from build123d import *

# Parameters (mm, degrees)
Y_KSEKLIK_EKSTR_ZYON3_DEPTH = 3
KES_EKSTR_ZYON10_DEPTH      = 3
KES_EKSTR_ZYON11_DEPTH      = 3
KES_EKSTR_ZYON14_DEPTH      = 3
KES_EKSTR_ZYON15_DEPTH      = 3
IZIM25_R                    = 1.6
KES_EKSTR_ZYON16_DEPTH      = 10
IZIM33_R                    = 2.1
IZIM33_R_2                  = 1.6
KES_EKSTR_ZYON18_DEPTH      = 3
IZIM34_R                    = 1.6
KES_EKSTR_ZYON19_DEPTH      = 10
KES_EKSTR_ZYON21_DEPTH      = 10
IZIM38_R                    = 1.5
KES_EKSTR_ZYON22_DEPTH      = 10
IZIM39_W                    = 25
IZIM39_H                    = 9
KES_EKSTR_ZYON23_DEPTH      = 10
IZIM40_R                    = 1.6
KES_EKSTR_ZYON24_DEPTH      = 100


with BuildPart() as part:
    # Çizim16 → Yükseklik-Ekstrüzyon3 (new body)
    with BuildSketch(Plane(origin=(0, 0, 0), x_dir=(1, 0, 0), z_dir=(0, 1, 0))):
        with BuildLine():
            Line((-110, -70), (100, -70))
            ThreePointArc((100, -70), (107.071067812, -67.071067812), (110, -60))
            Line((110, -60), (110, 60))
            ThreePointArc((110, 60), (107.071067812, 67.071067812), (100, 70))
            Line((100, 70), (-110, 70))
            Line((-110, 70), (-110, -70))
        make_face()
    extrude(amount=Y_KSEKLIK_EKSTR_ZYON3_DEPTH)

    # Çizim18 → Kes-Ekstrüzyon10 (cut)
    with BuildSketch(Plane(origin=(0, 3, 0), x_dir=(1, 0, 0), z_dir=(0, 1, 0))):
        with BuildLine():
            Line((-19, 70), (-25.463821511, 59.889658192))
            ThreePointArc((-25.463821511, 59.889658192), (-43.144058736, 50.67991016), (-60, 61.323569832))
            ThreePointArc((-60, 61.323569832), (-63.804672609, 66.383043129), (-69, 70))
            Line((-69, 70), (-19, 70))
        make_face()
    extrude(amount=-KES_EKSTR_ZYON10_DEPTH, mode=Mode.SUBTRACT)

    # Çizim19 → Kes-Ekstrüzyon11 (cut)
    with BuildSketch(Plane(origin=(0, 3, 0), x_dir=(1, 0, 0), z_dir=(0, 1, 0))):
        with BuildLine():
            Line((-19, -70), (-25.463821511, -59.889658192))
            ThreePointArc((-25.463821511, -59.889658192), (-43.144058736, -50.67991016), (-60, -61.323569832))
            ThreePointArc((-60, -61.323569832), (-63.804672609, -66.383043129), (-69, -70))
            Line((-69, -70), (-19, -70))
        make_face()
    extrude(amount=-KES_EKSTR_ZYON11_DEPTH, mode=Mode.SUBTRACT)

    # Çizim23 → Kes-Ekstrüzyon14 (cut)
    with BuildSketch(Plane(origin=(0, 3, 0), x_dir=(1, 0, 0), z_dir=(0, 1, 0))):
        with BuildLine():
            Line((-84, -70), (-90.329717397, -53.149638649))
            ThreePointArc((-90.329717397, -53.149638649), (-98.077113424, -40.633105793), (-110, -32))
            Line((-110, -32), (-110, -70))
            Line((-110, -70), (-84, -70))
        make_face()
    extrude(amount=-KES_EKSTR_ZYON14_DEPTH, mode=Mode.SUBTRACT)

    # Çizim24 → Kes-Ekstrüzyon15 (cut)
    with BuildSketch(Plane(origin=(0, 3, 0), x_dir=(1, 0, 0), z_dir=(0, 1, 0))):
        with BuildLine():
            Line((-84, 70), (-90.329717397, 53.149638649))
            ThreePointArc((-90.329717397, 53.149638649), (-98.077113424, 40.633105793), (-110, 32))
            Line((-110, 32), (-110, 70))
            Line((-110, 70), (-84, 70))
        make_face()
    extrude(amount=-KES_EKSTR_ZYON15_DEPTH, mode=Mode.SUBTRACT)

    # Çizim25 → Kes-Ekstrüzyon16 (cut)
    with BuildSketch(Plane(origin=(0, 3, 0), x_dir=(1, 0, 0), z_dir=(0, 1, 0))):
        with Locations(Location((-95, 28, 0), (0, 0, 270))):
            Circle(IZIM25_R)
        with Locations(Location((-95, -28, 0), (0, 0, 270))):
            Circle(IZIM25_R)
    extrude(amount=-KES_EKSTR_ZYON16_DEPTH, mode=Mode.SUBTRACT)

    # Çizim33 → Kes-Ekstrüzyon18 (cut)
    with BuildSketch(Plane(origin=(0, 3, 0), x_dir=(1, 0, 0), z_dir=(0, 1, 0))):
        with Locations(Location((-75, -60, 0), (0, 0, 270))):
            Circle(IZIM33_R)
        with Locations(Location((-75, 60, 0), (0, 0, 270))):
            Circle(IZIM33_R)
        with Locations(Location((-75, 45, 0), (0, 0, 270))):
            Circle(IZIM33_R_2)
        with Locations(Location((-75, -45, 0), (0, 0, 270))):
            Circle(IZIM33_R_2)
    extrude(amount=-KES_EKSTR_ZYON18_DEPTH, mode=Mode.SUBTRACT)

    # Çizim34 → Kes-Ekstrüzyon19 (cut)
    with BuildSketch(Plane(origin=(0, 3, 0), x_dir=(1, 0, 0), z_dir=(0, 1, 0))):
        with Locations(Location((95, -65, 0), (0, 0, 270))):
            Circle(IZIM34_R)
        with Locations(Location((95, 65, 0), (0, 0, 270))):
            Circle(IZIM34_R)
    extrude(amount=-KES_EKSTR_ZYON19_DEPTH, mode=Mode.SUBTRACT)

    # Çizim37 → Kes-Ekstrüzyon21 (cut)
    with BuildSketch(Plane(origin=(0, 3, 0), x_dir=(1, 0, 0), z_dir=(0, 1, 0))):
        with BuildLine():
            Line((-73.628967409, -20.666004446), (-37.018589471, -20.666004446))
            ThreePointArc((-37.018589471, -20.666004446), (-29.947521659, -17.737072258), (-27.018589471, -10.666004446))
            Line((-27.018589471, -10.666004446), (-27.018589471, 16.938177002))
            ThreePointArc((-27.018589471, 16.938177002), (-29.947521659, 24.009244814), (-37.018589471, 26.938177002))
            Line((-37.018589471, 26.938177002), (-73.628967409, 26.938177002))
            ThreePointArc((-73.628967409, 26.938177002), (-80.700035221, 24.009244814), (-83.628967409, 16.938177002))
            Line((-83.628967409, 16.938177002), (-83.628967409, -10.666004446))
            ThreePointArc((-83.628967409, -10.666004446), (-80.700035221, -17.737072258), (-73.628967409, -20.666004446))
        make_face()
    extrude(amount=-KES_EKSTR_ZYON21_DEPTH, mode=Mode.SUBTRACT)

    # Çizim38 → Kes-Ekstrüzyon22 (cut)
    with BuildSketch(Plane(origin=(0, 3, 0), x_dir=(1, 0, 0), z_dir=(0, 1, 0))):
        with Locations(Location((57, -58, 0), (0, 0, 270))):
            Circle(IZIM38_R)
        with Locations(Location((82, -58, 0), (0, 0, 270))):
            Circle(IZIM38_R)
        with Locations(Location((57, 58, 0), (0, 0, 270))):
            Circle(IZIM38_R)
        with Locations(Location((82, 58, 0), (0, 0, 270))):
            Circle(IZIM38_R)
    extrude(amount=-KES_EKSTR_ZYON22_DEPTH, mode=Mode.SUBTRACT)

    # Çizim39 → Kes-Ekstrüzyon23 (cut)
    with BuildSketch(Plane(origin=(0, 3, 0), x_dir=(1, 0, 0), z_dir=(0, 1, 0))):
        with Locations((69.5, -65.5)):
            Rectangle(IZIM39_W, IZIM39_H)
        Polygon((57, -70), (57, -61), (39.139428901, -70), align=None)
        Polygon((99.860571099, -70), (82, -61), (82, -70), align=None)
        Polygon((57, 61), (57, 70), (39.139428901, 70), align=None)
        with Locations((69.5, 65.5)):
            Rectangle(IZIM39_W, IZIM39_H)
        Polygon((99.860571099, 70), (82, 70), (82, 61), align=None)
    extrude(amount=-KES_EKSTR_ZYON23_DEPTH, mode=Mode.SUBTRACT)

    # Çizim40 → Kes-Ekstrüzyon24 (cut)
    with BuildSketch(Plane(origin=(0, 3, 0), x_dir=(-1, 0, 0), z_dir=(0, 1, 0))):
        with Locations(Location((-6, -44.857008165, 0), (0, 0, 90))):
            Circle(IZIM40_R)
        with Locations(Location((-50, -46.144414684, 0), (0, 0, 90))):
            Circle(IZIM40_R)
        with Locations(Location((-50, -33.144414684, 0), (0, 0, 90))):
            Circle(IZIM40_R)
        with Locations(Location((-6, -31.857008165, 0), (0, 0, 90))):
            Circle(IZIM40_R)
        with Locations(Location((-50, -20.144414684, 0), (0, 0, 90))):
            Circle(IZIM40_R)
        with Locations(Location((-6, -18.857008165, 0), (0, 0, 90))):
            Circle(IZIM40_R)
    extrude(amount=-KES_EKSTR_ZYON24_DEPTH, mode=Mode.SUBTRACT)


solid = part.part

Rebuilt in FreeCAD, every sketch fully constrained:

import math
import FreeCAD as App
import Part
import Sketcher

doc = App.newDocument("Part")
params = doc.addObject("Spreadsheet::Sheet", "Params")
for row, (alias, value) in enumerate([
    ("sketch1_radius", "10 mm"),
    ("sketch1_width", "210 mm"),
    ("sketch1_height", "120 mm"),
    ("pad1_length", "3 mm"),
    ("sketch2_radius", "20 mm"),
    ("sketch2_width", "50 mm"),
    ("sketch2_length", "12 mm"),
    ("pocket1_length", "3 mm"),
    ("sketch3_radius", "20 mm"),
    ("sketch3_width", "50 mm"),
    ("sketch3_length", "12 mm"),
    ("pocket2_length", "3 mm"),
    ("sketch4_radius", "38 mm"),
    ("sketch4_width", "26 mm"),
    ("sketch4_height", "38 mm"),
    ("sketch4_length", "18 mm"),
    ("pocket3_length", "3 mm"),
    ("sketch5_radius", "38 mm"),
    ("sketch5_width", "26 mm"),
    ("sketch5_height", "38 mm"),
    ("sketch5_length", "18 mm"),
    ("pocket4_length", "3 mm"),
    ("sketch6_diameter", "3.2 mm"),
    ("pocket5_length", "10 mm"),
    ("sketch7_diameter", "4.2 mm"),
    ("sketch7_diameter2", "3.2 mm"),
    ("pocket6_length", "3 mm"),
    ("sketch8_diameter", "3.2 mm"),
    ("pocket7_length", "10 mm"),
    ("sketch9_radius", "10 mm"),
    ("pocket8_length", "10 mm"),
    ("sketch10_diameter", "3 mm"),
    ("pocket9_length", "10 mm"),
    ("sketch11_width", "25 mm"),
    ("sketch11_length", "20 mm"),
    ("pocket10_length", "10 mm"),
    ("sketch12_diameter", "3.2 mm"),
    ("pocket11_length", "100 mm"),
], start=1):
    params.set(f"A{row}", alias)
    params.set(f"B{row}", "=" + value)
    params.setAlias(f"B{row}", alias)

body = doc.addObject("PartDesign::Body", "Body")

sketch1 = body.newObject("Sketcher::SketchObject", "Sketch")
sketch1.AttachmentSupport = (doc.getObject("XZ_Plane"), [""])
sketch1.MapMode = "FlatFace"
sketch1.addGeometry([
    Part.LineSegment(App.Vector(-110, 70, 0), App.Vector(100, 70, 0)),
    Part.ArcOfCircle(Part.Circle(App.Vector(100, 60, 0), App.Vector(0, 0, 1), 10), math.radians(0), math.radians(90)),
    Part.LineSegment(App.Vector(110, 60, 0), App.Vector(110, -60, 0)),
    Part.ArcOfCircle(Part.Circle(App.Vector(100, -60, 0), App.Vector(0, 0, 1), 10), math.radians(-90), math.radians(0)),
    Part.LineSegment(App.Vector(100, -70, 0), App.Vector(-110, -70, 0)),
    Part.LineSegment(App.Vector(-110, -70, 0), App.Vector(-110, 70, 0)),
], False)
sketch1.addConstraint([
    Sketcher.Constraint("Tangent", 0, 2, 1, 2),
    Sketcher.Constraint("Tangent", 1, 1, 2, 1),
    Sketcher.Constraint("Tangent", 2, 2, 3, 2),
    Sketcher.Constraint("Tangent", 3, 1, 4, 1),
    Sketcher.Constraint("Coincident", 4, 2, 5, 1),
    Sketcher.Constraint("Coincident", 5, 2, 0, 1),
    Sketcher.Constraint("Horizontal", 0),
    Sketcher.Constraint("Vertical", 2),
    Sketcher.Constraint("Horizontal", 4),
    Sketcher.Constraint("Vertical", 5),
    Sketcher.Constraint("Equal", 1, 3),
    Sketcher.Constraint("Radius", 1, 10.0),
    Sketcher.Constraint("DistanceX", 0, 1, 0, 2, 210.0),
    Sketcher.Constraint("DistanceY", 2, 2, 2, 1, 120.0),
    Sketcher.Constraint("DistanceX", -1, 1, 1, 3, 100.0),
    Sketcher.Constraint("DistanceY", -1, 1, 1, 3, 60.0),
])
sketch1.setExpression("Constraints[11]", "Params.sketch1_radius")
sketch1.setExpression("Constraints[12]", "Params.sketch1_width")
sketch1.setExpression("Constraints[13]", "Params.sketch1_height")
pad1 = body.newObject("PartDesign::Pad", "Pad")
pad1.Profile = sketch1
pad1.setExpression("Length", "Params.pad1_length")
pad1.Reversed = True

sketch2 = body.newObject("Sketcher::SketchObject", "Sketch001")
sketch2.AttachmentSupport = (doc.getObject("XZ_Plane"), [""])
sketch2.MapMode = "FlatFace"
sketch2.AttachmentOffset = App.Placement(App.Vector(0, 0, -3), App.Rotation())
sketch2.addGeometry([
    Part.LineSegment(App.Vector(-25, -60, 0), App.Vector(-19, -70, 0)),
    Part.LineSegment(App.Vector(-19, -70, 0), App.Vector(-69, -70, 0)),
    Part.ArcOfCircle(Part.Circle(App.Vector(-78, -52, 0), App.Vector(0, 0, 1), 20), math.radians(-64), math.radians(-28)),
    Part.ArcOfCircle(Part.Circle(App.Vector(-42, -71, 0), App.Vector(0, 0, 1), 20), math.radians(33), math.radians(152)),
], False)
sketch2.addConstraint([
    Sketcher.Constraint("Coincident", 0, 2, 1, 1),
    Sketcher.Constraint("Coincident", 1, 2, 2, 1),
    Sketcher.Constraint("Tangent", 2, 2, 3, 2),
    Sketcher.Constraint("Tangent", 3, 1, 0, 1),
    Sketcher.Constraint("Horizontal", 1),
    Sketcher.Constraint("Equal", 2, 3),
    Sketcher.Constraint("Radius", 2, 20.0),
    Sketcher.Constraint("DistanceX", 1, 2, 1, 1, 50.0),
    Sketcher.Constraint("Distance", 0, 12.0),
    Sketcher.Constraint("DistanceX", 0, 2, -1, 1, 19.0),
    Sketcher.Constraint("DistanceY", 0, 2, -1, 1, 70.0),
    Sketcher.Constraint("DistanceX", 2, 2, -1, 1, 60.0),
])
sketch2.setExpression("Constraints[6]", "Params.sketch2_radius")
sketch2.setExpression("Constraints[7]", "Params.sketch2_width")
sketch2.setExpression("Constraints[8]", "Params.sketch2_length")
pocket1 = body.newObject("PartDesign::Pocket", "Pocket")
pocket1.Profile = sketch2
pocket1.setExpression("Length", "Params.pocket1_length")
pocket1.Reversed = True

sketch3 = body.newObject("Sketcher::SketchObject", "Sketch002")
sketch3.AttachmentSupport = (doc.getObject("XZ_Plane"), [""])
sketch3.MapMode = "FlatFace"
sketch3.AttachmentOffset = App.Placement(App.Vector(0, 0, -3), App.Rotation())
sketch3.addGeometry([
    Part.LineSegment(App.Vector(-19, 70, 0), App.Vector(-25, 60, 0)),
    Part.ArcOfCircle(Part.Circle(App.Vector(-42, 71, 0), App.Vector(0, 0, 1), 20), math.radians(-152), math.radians(-33)),
    Part.ArcOfCircle(Part.Circle(App.Vector(-78, 52, 0), App.Vector(0, 0, 1), 20), math.radians(28), math.radians(64)),
    Part.LineSegment(App.Vector(-69, 70, 0), App.Vector(-19, 70, 0)),
], False)
sketch3.addConstraint([
    Sketcher.Constraint("Tangent", 0, 2, 1, 2),
    Sketcher.Constraint("Tangent", 1, 1, 2, 1),
    Sketcher.Constraint("Coincident", 2, 2, 3, 1),
    Sketcher.Constraint("Coincident", 3, 2, 0, 1),
    Sketcher.Constraint("Horizontal", 3),
    Sketcher.Constraint("Equal", 1, 2),
    Sketcher.Constraint("Radius", 1, 20.0),
    Sketcher.Constraint("DistanceX", 3, 1, 3, 2, 50.0),
    Sketcher.Constraint("Distance", 0, 12.0),
    Sketcher.Constraint("DistanceX", 1, 1, -1, 1, 60.0),
    Sketcher.Constraint("DistanceX", 2, 2, -1, 1, 69.0),
    Sketcher.Constraint("DistanceY", -1, 1, 2, 2, 70.0),
])
sketch3.setExpression("Constraints[6]", "Params.sketch3_radius")
sketch3.setExpression("Constraints[7]", "Params.sketch3_width")
sketch3.setExpression("Constraints[8]", "Params.sketch3_length")
pocket2 = body.newObject("PartDesign::Pocket", "Pocket001")
pocket2.Profile = sketch3
pocket2.setExpression("Length", "Params.pocket2_length")
pocket2.Reversed = True

sketch4 = body.newObject("Sketcher::SketchObject", "Sketch003")
sketch4.AttachmentSupport = (doc.getObject("XZ_Plane"), [""])
sketch4.MapMode = "FlatFace"
sketch4.AttachmentOffset = App.Placement(App.Vector(0, 0, -3), App.Rotation())
sketch4.addGeometry([
    Part.LineSegment(App.Vector(-84, 70, 0), App.Vector(-90, 53, 0)),
    Part.ArcOfCircle(Part.Circle(App.Vector(-126, 67, 0), App.Vector(0, 0, 1), 38), math.radians(-65), math.radians(-21)),
    Part.LineSegment(App.Vector(-110, 32, 0), App.Vector(-110, 70, 0)),
    Part.LineSegment(App.Vector(-110, 70, 0), App.Vector(-84, 70, 0)),
], False)
sketch4.addConstraint([
    Sketcher.Constraint("Tangent", 0, 2, 1, 2),
    Sketcher.Constraint("Coincident", 1, 1, 2, 1),
    Sketcher.Constraint("Coincident", 2, 2, 3, 1),
    Sketcher.Constraint("Coincident", 3, 2, 0, 1),
    Sketcher.Constraint("Vertical", 2),
    Sketcher.Constraint("Horizontal", 3),
    Sketcher.Constraint("Radius", 1, 38.0),
    Sketcher.Constraint("DistanceX", 3, 1, 3, 2, 26.0),
    Sketcher.Constraint("DistanceY", 2, 1, 2, 2, 38.0),
    Sketcher.Constraint("Distance", 0, 18.0),
    Sketcher.Constraint("DistanceX", 1, 1, -1, 1, 110.0),
    Sketcher.Constraint("DistanceY", -1, 1, 1, 1, 32.0),
])
sketch4.setExpression("Constraints[6]", "Params.sketch4_radius")
sketch4.setExpression("Constraints[7]", "Params.sketch4_width")
sketch4.setExpression("Constraints[8]", "Params.sketch4_height")
sketch4.setExpression("Constraints[9]", "Params.sketch4_length")
pocket3 = body.newObject("PartDesign::Pocket", "Pocket002")
pocket3.Profile = sketch4
pocket3.setExpression("Length", "Params.pocket3_length")
pocket3.Reversed = True

sketch5 = body.newObject("Sketcher::SketchObject", "Sketch004")
sketch5.AttachmentSupport = (doc.getObject("XZ_Plane"), [""])
sketch5.MapMode = "FlatFace"
sketch5.AttachmentOffset = App.Placement(App.Vector(0, 0, -3), App.Rotation())
sketch5.addGeometry([
    Part.LineSegment(App.Vector(-90, -53, 0), App.Vector(-84, -70, 0)),
    Part.LineSegment(App.Vector(-84, -70, 0), App.Vector(-110, -70, 0)),
    Part.LineSegment(App.Vector(-110, -70, 0), App.Vector(-110, -32, 0)),
    Part.ArcOfCircle(Part.Circle(App.Vector(-126, -67, 0), App.Vector(0, 0, 1), 38), math.radians(21), math.radians(65)),
], False)
sketch5.addConstraint([
    Sketcher.Constraint("Coincident", 0, 2, 1, 1),
    Sketcher.Constraint("Coincident", 1, 2, 2, 1),
    Sketcher.Constraint("Coincident", 2, 2, 3, 2),
    Sketcher.Constraint("Tangent", 3, 1, 0, 1),
    Sketcher.Constraint("Horizontal", 1),
    Sketcher.Constraint("Vertical", 2),
    Sketcher.Constraint("Radius", 3, 38.0),
    Sketcher.Constraint("DistanceX", 1, 2, 1, 1, 26.0),
    Sketcher.Constraint("DistanceY", 2, 1, 2, 2, 38.0),
    Sketcher.Constraint("Distance", 0, 18.0),
    Sketcher.Constraint("DistanceX", 0, 2, -1, 1, 84.0),
    Sketcher.Constraint("DistanceY", 0, 2, -1, 1, 70.0),
])
sketch5.setExpression("Constraints[6]", "Params.sketch5_radius")
sketch5.setExpression("Constraints[7]", "Params.sketch5_width")
sketch5.setExpression("Constraints[8]", "Params.sketch5_height")
sketch5.setExpression("Constraints[9]", "Params.sketch5_length")
pocket4 = body.newObject("PartDesign::Pocket", "Pocket003")
pocket4.Profile = sketch5
pocket4.setExpression("Length", "Params.pocket4_length")
pocket4.Reversed = True

sketch6 = body.newObject("Sketcher::SketchObject", "Sketch005")
sketch6.AttachmentSupport = (doc.getObject("XZ_Plane"), [""])
sketch6.MapMode = "FlatFace"
sketch6.AttachmentOffset = App.Placement(App.Vector(0, 0, -3), App.Rotation())
sketch6.addGeometry([
    Part.Circle(App.Vector(-95, -28, 0), App.Vector(0, 0, 1), 1.6),
    Part.Circle(App.Vector(-95, 28, 0), App.Vector(0, 0, 1), 1.6),
], False)
sketch6.addConstraint([
    Sketcher.Constraint("Equal", 0, 1),
    Sketcher.Constraint("Symmetric", 0, 3, 1, 3, -1),
    Sketcher.Constraint("Diameter", 0, 3.2),
    Sketcher.Constraint("DistanceX", 0, 3, -1, 1, 95.0),
    Sketcher.Constraint("DistanceY", 0, 3, -1, 1, 28.0),
])
sketch6.setExpression("Constraints[2]", "Params.sketch6_diameter")
pocket5 = body.newObject("PartDesign::Pocket", "Pocket004")
pocket5.Profile = sketch6
pocket5.setExpression("Length", "Params.pocket5_length")
pocket5.Reversed = True

sketch7 = body.newObject("Sketcher::SketchObject", "Sketch006")
sketch7.AttachmentSupport = (doc.getObject("XZ_Plane"), [""])
sketch7.MapMode = "FlatFace"
sketch7.AttachmentOffset = App.Placement(App.Vector(0, 0, -3), App.Rotation())
sketch7.addGeometry([
    Part.Circle(App.Vector(-75, 60, 0), App.Vector(0, 0, 1), 2.1),
    Part.Circle(App.Vector(-75, -60, 0), App.Vector(0, 0, 1), 2.1),
    Part.Circle(App.Vector(-75, -45, 0), App.Vector(0, 0, 1), 1.6),
    Part.Circle(App.Vector(-75, 45, 0), App.Vector(0, 0, 1), 1.6),
], False)
sketch7.addConstraint([
    Sketcher.Constraint("Equal", 0, 1),
    Sketcher.Constraint("Equal", 2, 3),
    Sketcher.Constraint("Symmetric", 0, 3, 1, 3, -1),
    Sketcher.Constraint("Symmetric", 2, 3, 3, 3, -1),
    Sketcher.Constraint("Vertical", 1, 3, 2, 3),
    Sketcher.Constraint("Diameter", 0, 4.2),
    Sketcher.Constraint("Diameter", 2, 3.2),
    Sketcher.Constraint("DistanceX", 0, 3, -1, 1, 75.0),
    Sketcher.Constraint("DistanceY", -1, 1, 0, 3, 60.0),
    Sketcher.Constraint("DistanceY", 2, 3, -1, 1, 45.0),
])
sketch7.setExpression("Constraints[5]", "Params.sketch7_diameter")
sketch7.setExpression("Constraints[6]", "Params.sketch7_diameter2")
pocket6 = body.newObject("PartDesign::Pocket", "Pocket005")
pocket6.Profile = sketch7
pocket6.setExpression("Length", "Params.pocket6_length")
pocket6.Reversed = True

sketch8 = body.newObject("Sketcher::SketchObject", "Sketch007")
sketch8.AttachmentSupport = (doc.getObject("XZ_Plane"), [""])
sketch8.MapMode = "FlatFace"
sketch8.AttachmentOffset = App.Placement(App.Vector(0, 0, -3), App.Rotation())
sketch8.addGeometry([
    Part.Circle(App.Vector(95, 65, 0), App.Vector(0, 0, 1), 1.6),
    Part.Circle(App.Vector(95, -65, 0), App.Vector(0, 0, 1), 1.6),
], False)
sketch8.addConstraint([
    Sketcher.Constraint("Equal", 0, 1),
    Sketcher.Constraint("Symmetric", 0, 3, 1, 3, -1),
    Sketcher.Constraint("Diameter", 0, 3.2),
    Sketcher.Constraint("DistanceX", -1, 1, 0, 3, 95.0),
    Sketcher.Constraint("DistanceY", -1, 1, 0, 3, 65.0),
])
sketch8.setExpression("Constraints[2]", "Params.sketch8_diameter")
pocket7 = body.newObject("PartDesign::Pocket", "Pocket006")
pocket7.Profile = sketch8
pocket7.setExpression("Length", "Params.pocket7_length")
pocket7.Reversed = True

sketch9 = body.newObject("Sketcher::SketchObject", "Sketch008")
sketch9.AttachmentSupport = (doc.getObject("XZ_Plane"), [""])
sketch9.MapMode = "FlatFace"
sketch9.AttachmentOffset = App.Placement(App.Vector(0, 0, -3), App.Rotation())
sketch9.addGeometry([
    Part.LineSegment(App.Vector(-74, 21, 0), App.Vector(-37, 21, 0)),
    Part.ArcOfCircle(Part.Circle(App.Vector(-37, 11, 0), App.Vector(0, 0, 1), 10), math.radians(0), math.radians(90)),
    Part.LineSegment(App.Vector(-27, 11, 0), App.Vector(-27, -17, 0)),
    Part.ArcOfCircle(Part.Circle(App.Vector(-37, -17, 0), App.Vector(0, 0, 1), 10), math.radians(-90), math.radians(0)),
    Part.LineSegment(App.Vector(-37, -27, 0), App.Vector(-74, -27, 0)),
    Part.ArcOfCircle(Part.Circle(App.Vector(-74, -17, 0), App.Vector(0, 0, 1), 10), math.radians(180), math.radians(270)),
    Part.LineSegment(App.Vector(-84, -17, 0), App.Vector(-84, 11, 0)),
    Part.ArcOfCircle(Part.Circle(App.Vector(-74, 11, 0), App.Vector(0, 0, 1), 10), math.radians(90), math.radians(180)),
], False)
sketch9.addConstraint([
    Sketcher.Constraint("Tangent", 0, 2, 1, 2),
    Sketcher.Constraint("Tangent", 1, 1, 2, 1),
    Sketcher.Constraint("Tangent", 2, 2, 3, 2),
    Sketcher.Constraint("Tangent", 3, 1, 4, 1),
    Sketcher.Constraint("Tangent", 4, 2, 5, 2),
    Sketcher.Constraint("Tangent", 5, 1, 6, 1),
    Sketcher.Constraint("Tangent", 6, 2, 7, 2),
    Sketcher.Constraint("Tangent", 7, 1, 0, 1),
    Sketcher.Constraint("Horizontal", 0),
    Sketcher.Constraint("Vertical", 2),
    Sketcher.Constraint("Horizontal", 4),
    Sketcher.Constraint("Vertical", 6),
    Sketcher.Constraint("Equal", 1, 3),
    Sketcher.Constraint("Equal", 3, 5),
    Sketcher.Constraint("Equal", 5, 7),
    Sketcher.Constraint("Radius", 1, 10.0),
    Sketcher.Constraint("DistanceY", 2, 2, 2, 1, 27.604181),
    Sketcher.Constraint("DistanceX", 0, 1, 0, 2, 36.610378),
    Sketcher.Constraint("DistanceX", 1, 3, -1, 1, 37.018589),
    Sketcher.Constraint("DistanceY", -1, 1, 1, 3, 10.666004),
])
sketch9.setExpression("Constraints[15]", "Params.sketch9_radius")
pocket8 = body.newObject("PartDesign::Pocket", "Pocket007")
pocket8.Profile = sketch9
pocket8.setExpression("Length", "Params.pocket8_length")
pocket8.Reversed = True

sketch10 = body.newObject("Sketcher::SketchObject", "Sketch009")
sketch10.AttachmentSupport = (doc.getObject("XZ_Plane"), [""])
sketch10.MapMode = "FlatFace"
sketch10.AttachmentOffset = App.Placement(App.Vector(0, 0, -3), App.Rotation())
sketch10.addGeometry([
    Part.Circle(App.Vector(57, 58, 0), App.Vector(0, 0, 1), 1.5),
    Part.Circle(App.Vector(82, 58, 0), App.Vector(0, 0, 1), 1.5),
    Part.Circle(App.Vector(57, -58, 0), App.Vector(0, 0, 1), 1.5),
    Part.Circle(App.Vector(82, -58, 0), App.Vector(0, 0, 1), 1.5),
], False)
sketch10.addConstraint([
    Sketcher.Constraint("Equal", 0, 1),
    Sketcher.Constraint("Equal", 1, 2),
    Sketcher.Constraint("Equal", 2, 3),
    Sketcher.Constraint("Symmetric", 0, 3, 2, 3, -1),
    Sketcher.Constraint("Symmetric", 1, 3, 3, 3, -1),
    Sketcher.Constraint("Horizontal", 0, 3, 1, 3),
    Sketcher.Constraint("Diameter", 0, 3.0),
    Sketcher.Constraint("DistanceX", -1, 1, 0, 3, 57.0),
    Sketcher.Constraint("DistanceY", -1, 1, 0, 3, 58.0),
    Sketcher.Constraint("DistanceX", -1, 1, 1, 3, 82.0),
])
sketch10.setExpression("Constraints[6]", "Params.sketch10_diameter")
pocket9 = body.newObject("PartDesign::Pocket", "Pocket008")
pocket9.Profile = sketch10
pocket9.setExpression("Length", "Params.pocket9_length")
pocket9.Reversed = True

sketch11 = body.newObject("Sketcher::SketchObject", "Sketch010")
sketch11.AttachmentSupport = (doc.getObject("XZ_Plane"), [""])
sketch11.MapMode = "FlatFace"
sketch11.AttachmentOffset = App.Placement(App.Vector(0, 0, -3), App.Rotation())
sketch11.addGeometry([
    Part.LineSegment(App.Vector(82, 61, 0), App.Vector(57, 61, 0)),
    Part.LineSegment(App.Vector(57, 61, 0), App.Vector(39, 70, 0)),
    Part.LineSegment(App.Vector(39, 70, 0), App.Vector(100, 70, 0)),
    Part.LineSegment(App.Vector(100, 70, 0), App.Vector(82, 61, 0)),
    Part.LineSegment(App.Vector(39, -70, 0), App.Vector(57, -61, 0)),
    Part.LineSegment(App.Vector(57, -61, 0), App.Vector(82, -61, 0)),
    Part.LineSegment(App.Vector(82, -61, 0), App.Vector(100, -70, 0)),
    Part.LineSegment(App.Vector(100, -70, 0), App.Vector(39, -70, 0)),
], False)
sketch11.addConstraint([
    Sketcher.Constraint("Coincident", 0, 2, 1, 1),
    Sketcher.Constraint("Coincident", 1, 2, 2, 1),
    Sketcher.Constraint("Coincident", 2, 2, 3, 1),
    Sketcher.Constraint("Coincident", 3, 2, 0, 1),
    Sketcher.Constraint("Coincident", 4, 2, 5, 1),
    Sketcher.Constraint("Coincident", 5, 2, 6, 1),
    Sketcher.Constraint("Coincident", 6, 2, 7, 1),
    Sketcher.Constraint("Coincident", 7, 2, 4, 1),
    Sketcher.Constraint("Horizontal", 0),
    Sketcher.Constraint("Horizontal", 2),
    Sketcher.Constraint("Horizontal", 5),
    Sketcher.Constraint("Horizontal", 7),
    Sketcher.Constraint("Symmetric", 0, 2, 4, 2, -1),
    Sketcher.Constraint("Symmetric", 2, 2, 6, 2, -1),
    Sketcher.Constraint("Parallel", 3, 4),
    Sketcher.Constraint("Parallel", 1, 6),
    Sketcher.Constraint("Vertical", 3, 2, 5, 2),
    Sketcher.Constraint("DistanceX", 0, 2, 0, 1, 25.0),
    Sketcher.Constraint("Distance", 1, 20.0),
    Sketcher.Constraint("DistanceX", -1, 1, 0, 2, 57.0),
    Sketcher.Constraint("DistanceY", -1, 1, 0, 2, 61.0),
    Sketcher.Constraint("DistanceY", -1, 1, 1, 2, 70.0),
])
sketch11.setExpression("Constraints[17]", "Params.sketch11_width")
sketch11.setExpression("Constraints[18]", "Params.sketch11_length")
pocket10 = body.newObject("PartDesign::Pocket", "Pocket009")
pocket10.Profile = sketch11
pocket10.setExpression("Length", "Params.pocket10_length")
pocket10.Reversed = True

sketch12 = body.newObject("Sketcher::SketchObject", "Sketch011")
sketch12.AttachmentSupport = (doc.getObject("XZ_Plane"), [""])
sketch12.MapMode = "FlatFace"
sketch12.AttachmentOffset = App.Placement(App.Vector(0, 0, -3), App.Rotation())
sketch12.addGeometry([
    Part.Circle(App.Vector(6, -44.9, 0), App.Vector(0, 0, 1), 1.6),
    Part.Circle(App.Vector(50, -46.1, 0), App.Vector(0, 0, 1), 1.6),
    Part.Circle(App.Vector(50, -33.1, 0), App.Vector(0, 0, 1), 1.6),
    Part.Circle(App.Vector(6, -31.9, 0), App.Vector(0, 0, 1), 1.6),
    Part.Circle(App.Vector(50, -20.1, 0), App.Vector(0, 0, 1), 1.6),
    Part.Circle(App.Vector(6, -18.9, 0), App.Vector(0, 0, 1), 1.6),
], False)
sketch12.addConstraint([
    Sketcher.Constraint("Equal", 0, 1),
    Sketcher.Constraint("Equal", 1, 2),
    Sketcher.Constraint("Equal", 2, 3),
    Sketcher.Constraint("Equal", 3, 4),
    Sketcher.Constraint("Equal", 4, 5),
    Sketcher.Constraint("Vertical", 1, 3, 2, 3),
    Sketcher.Constraint("Vertical", 0, 3, 3, 3),
    Sketcher.Constraint("Vertical", 2, 3, 4, 3),
    Sketcher.Constraint("Vertical", 3, 3, 5, 3),
    Sketcher.Constraint("Diameter", 0, 3.2),
    Sketcher.Constraint("DistanceX", -1, 1, 0, 3, 6.0),
    Sketcher.Constraint("DistanceX", -1, 1, 1, 3, 50.0),
    Sketcher.Constraint("DistanceY", 1, 3, 2, 3, 13.0),
    Sketcher.Constraint("DistanceY", 0, 3, 3, 3, 13.0),
    Sketcher.Constraint("DistanceY", 2, 3, 4, 3, 13.0),
    Sketcher.Constraint("DistanceY", 3, 3, 5, 3, 13.0),
    Sketcher.Constraint("DistanceY", 0, 3, -1, 1, 44.857008),
    Sketcher.Constraint("DistanceY", 1, 3, -1, 1, 46.144415),
])
sketch12.setExpression("Constraints[9]", "Params.sketch12_diameter")
pocket11 = body.newObject("PartDesign::Pocket", "Pocket010")
pocket11.Profile = sketch12
pocket11.setExpression("Length", "Params.pocket11_length")
pocket11.Reversed = True

doc.recompute()
